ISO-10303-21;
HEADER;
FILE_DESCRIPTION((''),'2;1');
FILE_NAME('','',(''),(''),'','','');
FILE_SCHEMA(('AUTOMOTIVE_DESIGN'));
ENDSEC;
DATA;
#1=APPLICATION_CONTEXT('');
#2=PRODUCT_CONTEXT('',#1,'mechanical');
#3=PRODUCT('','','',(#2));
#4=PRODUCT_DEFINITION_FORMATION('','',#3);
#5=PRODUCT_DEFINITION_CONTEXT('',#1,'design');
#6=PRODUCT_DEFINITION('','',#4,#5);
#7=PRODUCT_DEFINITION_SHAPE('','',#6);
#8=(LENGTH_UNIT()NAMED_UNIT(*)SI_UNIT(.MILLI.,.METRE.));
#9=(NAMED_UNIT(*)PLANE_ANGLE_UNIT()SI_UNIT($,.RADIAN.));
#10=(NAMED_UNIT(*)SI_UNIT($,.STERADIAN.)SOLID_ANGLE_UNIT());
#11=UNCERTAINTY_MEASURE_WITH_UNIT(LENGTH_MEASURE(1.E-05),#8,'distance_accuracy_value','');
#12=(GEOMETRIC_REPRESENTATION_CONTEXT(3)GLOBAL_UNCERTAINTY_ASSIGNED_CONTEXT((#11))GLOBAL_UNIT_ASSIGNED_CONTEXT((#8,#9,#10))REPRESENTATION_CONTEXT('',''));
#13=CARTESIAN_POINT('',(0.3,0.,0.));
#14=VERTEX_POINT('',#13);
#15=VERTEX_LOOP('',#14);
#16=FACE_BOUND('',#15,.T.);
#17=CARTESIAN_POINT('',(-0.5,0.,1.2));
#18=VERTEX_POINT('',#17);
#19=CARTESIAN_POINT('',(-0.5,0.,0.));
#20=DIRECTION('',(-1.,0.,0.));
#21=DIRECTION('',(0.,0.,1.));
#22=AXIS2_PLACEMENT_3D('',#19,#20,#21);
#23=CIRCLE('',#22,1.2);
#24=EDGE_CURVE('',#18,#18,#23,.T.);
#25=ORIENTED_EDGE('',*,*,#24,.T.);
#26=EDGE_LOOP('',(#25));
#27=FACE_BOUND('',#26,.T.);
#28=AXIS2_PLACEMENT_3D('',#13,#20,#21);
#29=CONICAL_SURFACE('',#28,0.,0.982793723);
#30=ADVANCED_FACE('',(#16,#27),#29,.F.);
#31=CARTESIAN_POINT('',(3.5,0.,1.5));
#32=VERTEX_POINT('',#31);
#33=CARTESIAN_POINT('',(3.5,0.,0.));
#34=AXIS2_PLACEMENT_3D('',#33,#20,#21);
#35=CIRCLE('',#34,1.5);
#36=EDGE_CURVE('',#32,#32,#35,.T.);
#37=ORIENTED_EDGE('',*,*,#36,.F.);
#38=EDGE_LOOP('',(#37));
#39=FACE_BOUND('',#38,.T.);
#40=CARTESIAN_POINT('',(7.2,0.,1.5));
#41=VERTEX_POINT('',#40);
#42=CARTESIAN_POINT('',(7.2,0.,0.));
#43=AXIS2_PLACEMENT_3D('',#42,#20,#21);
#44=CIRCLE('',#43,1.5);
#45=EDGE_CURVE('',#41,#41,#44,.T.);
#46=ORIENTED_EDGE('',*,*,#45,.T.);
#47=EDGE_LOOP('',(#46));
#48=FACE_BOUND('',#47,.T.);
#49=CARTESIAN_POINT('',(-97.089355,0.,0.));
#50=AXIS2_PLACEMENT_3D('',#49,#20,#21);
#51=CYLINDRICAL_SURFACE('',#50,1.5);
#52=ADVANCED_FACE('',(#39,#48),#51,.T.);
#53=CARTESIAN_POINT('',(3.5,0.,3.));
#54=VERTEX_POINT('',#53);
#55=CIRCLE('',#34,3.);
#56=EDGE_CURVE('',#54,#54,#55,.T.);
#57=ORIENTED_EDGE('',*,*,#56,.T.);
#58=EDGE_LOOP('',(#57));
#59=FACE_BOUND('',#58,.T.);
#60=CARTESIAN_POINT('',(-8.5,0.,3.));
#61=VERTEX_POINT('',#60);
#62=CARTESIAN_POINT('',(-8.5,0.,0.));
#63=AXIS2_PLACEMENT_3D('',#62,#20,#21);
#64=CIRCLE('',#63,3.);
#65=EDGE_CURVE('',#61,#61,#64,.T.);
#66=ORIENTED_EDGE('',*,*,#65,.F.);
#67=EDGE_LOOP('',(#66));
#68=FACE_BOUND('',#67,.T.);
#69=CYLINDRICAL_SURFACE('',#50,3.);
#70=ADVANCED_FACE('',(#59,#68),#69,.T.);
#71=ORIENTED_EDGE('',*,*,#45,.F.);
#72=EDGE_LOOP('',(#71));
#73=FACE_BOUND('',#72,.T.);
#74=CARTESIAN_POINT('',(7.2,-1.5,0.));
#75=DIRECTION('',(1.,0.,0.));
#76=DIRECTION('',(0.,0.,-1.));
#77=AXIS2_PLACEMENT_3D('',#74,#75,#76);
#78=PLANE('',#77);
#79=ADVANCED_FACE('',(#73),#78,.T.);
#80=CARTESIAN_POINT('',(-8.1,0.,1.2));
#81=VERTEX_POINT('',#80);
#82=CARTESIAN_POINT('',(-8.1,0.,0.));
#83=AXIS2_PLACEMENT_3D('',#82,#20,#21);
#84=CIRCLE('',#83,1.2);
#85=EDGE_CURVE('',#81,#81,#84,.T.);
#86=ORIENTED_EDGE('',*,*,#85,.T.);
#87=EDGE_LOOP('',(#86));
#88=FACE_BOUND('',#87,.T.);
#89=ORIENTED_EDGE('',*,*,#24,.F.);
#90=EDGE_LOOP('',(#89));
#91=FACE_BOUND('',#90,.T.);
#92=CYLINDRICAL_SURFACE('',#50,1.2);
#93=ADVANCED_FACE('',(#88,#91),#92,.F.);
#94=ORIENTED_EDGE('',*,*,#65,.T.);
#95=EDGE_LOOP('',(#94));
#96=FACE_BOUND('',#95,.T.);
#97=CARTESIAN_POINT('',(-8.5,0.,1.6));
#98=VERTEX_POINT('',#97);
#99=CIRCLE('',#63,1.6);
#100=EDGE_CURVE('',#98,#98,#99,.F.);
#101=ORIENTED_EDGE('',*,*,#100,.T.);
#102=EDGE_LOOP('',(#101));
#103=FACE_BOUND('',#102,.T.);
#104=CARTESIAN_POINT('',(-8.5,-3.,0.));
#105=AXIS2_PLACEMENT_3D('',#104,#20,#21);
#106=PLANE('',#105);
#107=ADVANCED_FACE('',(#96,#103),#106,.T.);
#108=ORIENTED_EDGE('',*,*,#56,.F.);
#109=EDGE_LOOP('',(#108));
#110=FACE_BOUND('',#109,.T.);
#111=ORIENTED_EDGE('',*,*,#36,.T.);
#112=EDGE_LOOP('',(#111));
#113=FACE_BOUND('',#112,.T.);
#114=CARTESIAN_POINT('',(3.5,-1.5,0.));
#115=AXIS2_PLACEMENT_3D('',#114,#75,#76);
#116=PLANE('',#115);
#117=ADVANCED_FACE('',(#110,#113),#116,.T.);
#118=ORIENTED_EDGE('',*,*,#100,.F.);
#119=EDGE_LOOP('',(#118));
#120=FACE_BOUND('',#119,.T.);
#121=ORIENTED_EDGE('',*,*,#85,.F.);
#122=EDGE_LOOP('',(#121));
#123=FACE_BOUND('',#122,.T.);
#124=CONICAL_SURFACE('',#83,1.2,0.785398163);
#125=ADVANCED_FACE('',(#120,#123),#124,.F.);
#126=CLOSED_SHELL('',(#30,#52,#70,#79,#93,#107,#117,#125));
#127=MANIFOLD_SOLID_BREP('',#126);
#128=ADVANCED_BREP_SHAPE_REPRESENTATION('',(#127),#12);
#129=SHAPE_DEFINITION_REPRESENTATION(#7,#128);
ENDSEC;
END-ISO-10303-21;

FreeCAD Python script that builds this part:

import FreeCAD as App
import Part
import Sketcher

V = App.Vector
Q = App.Units.Quantity


def edges_at(feature, points):
    """Names of the edges that pass closest to the given points."""
    edges = feature.Shape.Edges
    near = lambda p: min(range(len(edges)), key=lambda i: edges[i].distToShape(Part.Vertex(*p))[0])
    return sorted({f"Edge{near(p) + 1}" for p in points})

doc = App.newDocument("Part")
params = doc.addObject("Spreadsheet::Sheet", "Params")
for row, (alias, value) in enumerate([
    ("sketch1_width", "8 mm"),
    ("sketch1_width2", "12 mm"),
    ("sketch1_width3", "6.9 mm"),
    ("sketch1_width4", "3.7 mm"),
    ("sketch1_height", "1.5 mm"),
    ("revolution_angle", "360 deg"),
    ("chamfer_size", "0.4 mm"),
], start=1):
    params.set(f"A{row}", alias)
    params.set(f"B{row}", "=" + value)
    params.setAlias(f"B{row}", alias)

body = doc.addObject("PartDesign::Body", "Body")

sketch1 = doc.addObject("Sketcher::SketchObject", "Sketch")
body.addObject(sketch1)
sketch1.AttachmentSupport = (doc.XY_Plane, [""])
sketch1.MapMode = "FlatFace"
sketch1.addGeometry([
    Part.LineSegment(V(7.2, -1.5, 0), V(7.2, 0, 0)),
    Part.LineSegment(V(7.2, 0, 0), V(0.3, 0, 0)),
    Part.LineSegment(V(0.3, 0, 0), V(-0.5, -1.2, 0)),
    Part.LineSegment(V(-0.5, -1.2, 0), V(-8.5, -1.2, 0)),
    Part.LineSegment(V(-8.5, -1.2, 0), V(-8.5, -3, 0)),
    Part.LineSegment(V(-8.5, -3, 0), V(3.5, -3, 0)),
    Part.LineSegment(V(3.5, -3, 0), V(3.5, -1.5, 0)),
    Part.LineSegment(V(3.5, -1.5, 0), V(7.2, -1.5, 0)),
], False)
sketch1.addConstraint([
    Sketcher.Constraint("Coincident", 0, 2, 1, 1),
    Sketcher.Constraint("Coincident", 1, 2, 2, 1),
    Sketcher.Constraint("Coincident", 2, 2, 3, 1),
    Sketcher.Constraint("Coincident", 3, 2, 4, 1),
    Sketcher.Constraint("Coincident", 4, 2, 5, 1),
    Sketcher.Constraint("Coincident", 5, 2, 6, 1),
    Sketcher.Constraint("Coincident", 6, 2, 7, 1),
    Sketcher.Constraint("Coincident", 7, 2, 0, 1),
    Sketcher.Constraint("Vertical", 0),
    Sketcher.Constraint("Horizontal", 1),
    Sketcher.Constraint("Horizontal", 3),
    Sketcher.Constraint("Vertical", 4),
    Sketcher.Constraint("Horizontal", 5),
    Sketcher.Constraint("Vertical", 6),
    Sketcher.Constraint("Horizontal", 7),
    Sketcher.Constraint("PointOnObject", 0, 2, -1),
    Sketcher.Constraint("Equal", 0, 6),
    Sketcher.Constraint("DistanceX", 3, 2, 3, 1, Q("8 mm")),
    Sketcher.Constraint("DistanceX", 5, 1, 5, 2, Q("12 mm")),
    Sketcher.Constraint("DistanceX", 1, 2, 1, 1, Q("6.9 mm")),
    Sketcher.Constraint("DistanceX", 7, 1, 7, 2, Q("3.7 mm")),
    Sketcher.Constraint("DistanceY", 0, 1, 0, 2, Q("1.5 mm")),
    Sketcher.Constraint("DistanceY", 4, 2, 4, 1, Q("1.8 mm")),
    Sketcher.Constraint("DistanceX", -1, 1, 0, 2, Q("7.2 mm")),
])
sketch1.setExpression("Constraints[17]", "Params.sketch1_width")
sketch1.setExpression("Constraints[18]", "Params.sketch1_width2")
sketch1.setExpression("Constraints[19]", "Params.sketch1_width3")
sketch1.setExpression("Constraints[20]", "Params.sketch1_width4")
sketch1.setExpression("Constraints[21]", "Params.sketch1_height")
revolution = doc.addObject("PartDesign::Revolution", "Revolution")
body.addObject(revolution)
revolution.Profile = sketch1
revolution.ReferenceAxis = (sketch1, ["H_Axis"])
revolution.setExpression("Angle", "Params.revolution_angle")
doc.recompute()

chamfer = doc.addObject("PartDesign::Chamfer", "Chamfer")
body.addObject(chamfer)
chamfer.Base = (revolution, edges_at(revolution, [(-8.5, 0, -1.2)]))
chamfer.setExpression("Size", "Params.chamfer_size")

doc.recompute()
